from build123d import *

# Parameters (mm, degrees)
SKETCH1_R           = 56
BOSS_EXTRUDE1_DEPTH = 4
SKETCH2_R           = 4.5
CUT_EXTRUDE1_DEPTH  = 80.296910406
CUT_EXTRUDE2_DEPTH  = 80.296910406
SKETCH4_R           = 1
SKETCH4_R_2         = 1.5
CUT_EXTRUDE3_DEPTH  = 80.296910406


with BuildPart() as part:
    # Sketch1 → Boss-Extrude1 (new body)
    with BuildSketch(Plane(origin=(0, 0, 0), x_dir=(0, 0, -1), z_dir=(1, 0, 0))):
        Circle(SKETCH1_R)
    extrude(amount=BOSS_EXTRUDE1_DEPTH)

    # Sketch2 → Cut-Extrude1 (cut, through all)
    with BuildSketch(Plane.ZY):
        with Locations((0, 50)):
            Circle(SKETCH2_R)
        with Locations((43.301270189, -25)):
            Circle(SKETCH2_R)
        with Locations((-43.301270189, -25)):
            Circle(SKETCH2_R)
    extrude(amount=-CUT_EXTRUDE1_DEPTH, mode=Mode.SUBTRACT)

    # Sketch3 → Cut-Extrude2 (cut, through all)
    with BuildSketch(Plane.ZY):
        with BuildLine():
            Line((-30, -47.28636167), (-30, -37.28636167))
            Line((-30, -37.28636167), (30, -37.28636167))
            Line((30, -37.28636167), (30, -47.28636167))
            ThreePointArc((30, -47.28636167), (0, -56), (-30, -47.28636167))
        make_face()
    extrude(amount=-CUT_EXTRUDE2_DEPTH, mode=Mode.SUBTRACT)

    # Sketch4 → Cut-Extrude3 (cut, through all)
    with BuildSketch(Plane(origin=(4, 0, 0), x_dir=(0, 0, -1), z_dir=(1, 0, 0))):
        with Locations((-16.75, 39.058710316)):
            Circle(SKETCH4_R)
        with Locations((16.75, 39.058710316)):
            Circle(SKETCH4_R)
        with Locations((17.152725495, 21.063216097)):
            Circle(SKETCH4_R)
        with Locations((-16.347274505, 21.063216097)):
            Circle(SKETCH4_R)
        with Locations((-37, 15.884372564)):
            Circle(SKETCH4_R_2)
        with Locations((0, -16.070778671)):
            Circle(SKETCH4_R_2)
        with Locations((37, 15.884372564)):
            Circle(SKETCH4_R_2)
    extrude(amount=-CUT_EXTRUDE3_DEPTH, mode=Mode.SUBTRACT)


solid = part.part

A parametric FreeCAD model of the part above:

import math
import FreeCAD as App
import Part
import Sketcher

doc = App.newDocument("Part")
body = doc.addObject("PartDesign::Body", "Body")

sketch1 = body.newObject("Sketcher::SketchObject", "Sketch")
sketch1.AttachmentSupport = (doc.getObject("YZ_Plane"), [""])
sketch1.MapMode = "FlatFace"
sketch1.addGeometry(Part.Circle(App.Vector(0, 0, 0), App.Vector(0, 0, 1), 56), False)
sketch1.addConstraint([
    Sketcher.Constraint("Coincident", 0, 3, -1, 1),
    Sketcher.Constraint("Diameter", 0, 112.0),
])
pad1 = body.newObject("PartDesign::Pad", "Pad")
pad1.Profile = sketch1
pad1.Length = 4

sketch2 = body.newObject("Sketcher::SketchObject", "Sketch001")
sketch2.AttachmentSupport = (doc.getObject("YZ_Plane"), [""])
sketch2.MapMode = "FlatFace"
sketch2.addGeometry([
    Part.Circle(App.Vector(50, 0, 0), App.Vector(0, 0, 1), 4.5),
    Part.Circle(App.Vector(-25, 43.30127, 0), App.Vector(0, 0, 1), 4.5),
    Part.Circle(App.Vector(-25, -43.30127, 0), App.Vector(0, 0, 1), 4.5),
], False)
sketch2.addConstraint([
    Sketcher.Constraint("Equal", 0, 1),
    Sketcher.Constraint("Equal", 1, 2),
    Sketcher.Constraint("Symmetric", 1, 3, 2, 3, -1),
    Sketcher.Constraint("PointOnObject", 0, 3, -1),
    Sketcher.Constraint("Diameter", 0, 9.0),
    Sketcher.Constraint("DistanceX", -1, 1, 0, 3, 50.0),
    Sketcher.Constraint("DistanceX", 1, 3, -1, 1, 25.0),
    Sketcher.Constraint("DistanceY", -1, 1, 1, 3, 43.30127),
])
pocket1 = body.newObject("PartDesign::Pocket", "Pocket")
pocket1.Profile = sketch2
pocket1.Type = "ThroughAll"
pocket1.Reversed = True

sketch3 = body.newObject("Sketcher::SketchObject", "Sketch002")
sketch3.AttachmentSupport = (doc.getObject("YZ_Plane"), [""])
sketch3.MapMode = "FlatFace"
sketch3.addGeometry([
    Part.LineSegment(App.Vector(-37.286362, -30, 0), App.Vector(-47.286362, -30, 0)),
    Part.ArcOfCircle(Part.Circle(App.Vector(0, 0, 0), App.Vector(0, 0, 1), 56), math.radians(147.607635), math.radians(212.392365)),
    Part.LineSegment(App.Vector(-47.286362, 30, 0), App.Vector(-37.286362, 30, 0)),
    Part.LineSegment(App.Vector(-37.286362, 30, 0), App.Vector(-37.286362, -30, 0)),
], False)
sketch3.addConstraint([
    Sketcher.Constraint("Coincident", 0, 2, 1, 2),
    Sketcher.Constraint("Coincident", 1, 1, 2, 1),
    Sketcher.Constraint("Coincident", 2, 2, 3, 1),
    Sketcher.Constraint("Coincident", 3, 2, 0, 1),
    Sketcher.Constraint("Horizontal", 0),
    Sketcher.Constraint("Horizontal", 2),
    Sketcher.Constraint("Vertical", 3),
    Sketcher.Constraint("Coincident", 1, 3, -1, 1),
    Sketcher.Constraint("Vertical", 0, 2, 1, 1),
    Sketcher.Constraint("Radius", 1, 56.0),
    Sketcher.Constraint("DistanceX", 0, 2, 0, 1, 10.0),
    Sketcher.Constraint("DistanceY", 3, 2, 3, 1, 60.0),
])
pocket2 = body.newObject("PartDesign::Pocket", "Pocket001")
pocket2.Profile = sketch3
pocket2.Type = "ThroughAll"
pocket2.Reversed = True

sketch4 = body.newObject("Sketcher::SketchObject", "Sketch003")
sketch4.AttachmentSupport = (doc.getObject("YZ_Plane"), [""])
sketch4.MapMode = "FlatFace"
sketch4.AttachmentOffset = App.Placement(App.Vector(0, 0, 4), App.Rotation())
sketch4.addGeometry([
    Part.Circle(App.Vector(39.05871, 16.75, 0), App.Vector(0, 0, 1), 1),
    Part.Circle(App.Vector(39.05871, -16.75, 0), App.Vector(0, 0, 1), 1),
    Part.Circle(App.Vector(21.063216, -17.152725, 0), App.Vector(0, 0, 1), 1),
    Part.Circle(App.Vector(21.063216, 16.347275, 0), App.Vector(0, 0, 1), 1),
    Part.Circle(App.Vector(15.884373, 37, 0), App.Vector(0, 0, 1), 1.5),
    Part.Circle(App.Vector(-16.070779, 0, 0), App.Vector(0, 0, 1), 1.5),
    Part.Circle(App.Vector(15.884373, -37, 0), App.Vector(0, 0, 1), 1.5),
], False)
sketch4.addConstraint([
    Sketcher.Constraint("Equal", 0, 1),
    Sketcher.Constraint("Equal", 1, 2),
    Sketcher.Constraint("Equal", 2, 3),
    Sketcher.Constraint("Equal", 4, 5),
    Sketcher.Constraint("Equal", 5, 6),
    Sketcher.Constraint("Symmetric", 0, 3, 1, 3, -1),
    Sketcher.Constraint("Symmetric", 4, 3, 6, 3, -1),
    Sketcher.Constraint("PointOnObject", 5, 3, -1),
    Sketcher.Constraint("Vertical", 2, 3, 3, 3),
    Sketcher.Constraint("Diameter", 0, 2.0),
    Sketcher.Constraint("Diameter", 4, 3.0),
    Sketcher.Constraint("DistanceY", -1, 1, 4, 3, 37.0),
    Sketcher.Constraint("DistanceY", 1, 3, 0, 3, 33.5),
    Sketcher.Constraint("DistanceY", 2, 3, 3, 3, 33.5),
    Sketcher.Constraint("DistanceX", -1, 1, 0, 3, 39.05871),
    Sketcher.Constraint("DistanceX", 5, 3, -1, 1, 16.070779),
    Sketcher.Constraint("DistanceX", 5, 3, 4, 3, 31.955151),
    Sketcher.Constraint("DistanceX", -1, 1, 2, 3, 21.063216),
    Sketcher.Constraint("DistanceY", 2, 3, -1, 1, 17.152725),
])
pocket3 = body.newObject("PartDesign::Pocket", "Pocket002")
pocket3.Profile = sketch4
pocket3.Type = "ThroughAll"

doc.recompute()
